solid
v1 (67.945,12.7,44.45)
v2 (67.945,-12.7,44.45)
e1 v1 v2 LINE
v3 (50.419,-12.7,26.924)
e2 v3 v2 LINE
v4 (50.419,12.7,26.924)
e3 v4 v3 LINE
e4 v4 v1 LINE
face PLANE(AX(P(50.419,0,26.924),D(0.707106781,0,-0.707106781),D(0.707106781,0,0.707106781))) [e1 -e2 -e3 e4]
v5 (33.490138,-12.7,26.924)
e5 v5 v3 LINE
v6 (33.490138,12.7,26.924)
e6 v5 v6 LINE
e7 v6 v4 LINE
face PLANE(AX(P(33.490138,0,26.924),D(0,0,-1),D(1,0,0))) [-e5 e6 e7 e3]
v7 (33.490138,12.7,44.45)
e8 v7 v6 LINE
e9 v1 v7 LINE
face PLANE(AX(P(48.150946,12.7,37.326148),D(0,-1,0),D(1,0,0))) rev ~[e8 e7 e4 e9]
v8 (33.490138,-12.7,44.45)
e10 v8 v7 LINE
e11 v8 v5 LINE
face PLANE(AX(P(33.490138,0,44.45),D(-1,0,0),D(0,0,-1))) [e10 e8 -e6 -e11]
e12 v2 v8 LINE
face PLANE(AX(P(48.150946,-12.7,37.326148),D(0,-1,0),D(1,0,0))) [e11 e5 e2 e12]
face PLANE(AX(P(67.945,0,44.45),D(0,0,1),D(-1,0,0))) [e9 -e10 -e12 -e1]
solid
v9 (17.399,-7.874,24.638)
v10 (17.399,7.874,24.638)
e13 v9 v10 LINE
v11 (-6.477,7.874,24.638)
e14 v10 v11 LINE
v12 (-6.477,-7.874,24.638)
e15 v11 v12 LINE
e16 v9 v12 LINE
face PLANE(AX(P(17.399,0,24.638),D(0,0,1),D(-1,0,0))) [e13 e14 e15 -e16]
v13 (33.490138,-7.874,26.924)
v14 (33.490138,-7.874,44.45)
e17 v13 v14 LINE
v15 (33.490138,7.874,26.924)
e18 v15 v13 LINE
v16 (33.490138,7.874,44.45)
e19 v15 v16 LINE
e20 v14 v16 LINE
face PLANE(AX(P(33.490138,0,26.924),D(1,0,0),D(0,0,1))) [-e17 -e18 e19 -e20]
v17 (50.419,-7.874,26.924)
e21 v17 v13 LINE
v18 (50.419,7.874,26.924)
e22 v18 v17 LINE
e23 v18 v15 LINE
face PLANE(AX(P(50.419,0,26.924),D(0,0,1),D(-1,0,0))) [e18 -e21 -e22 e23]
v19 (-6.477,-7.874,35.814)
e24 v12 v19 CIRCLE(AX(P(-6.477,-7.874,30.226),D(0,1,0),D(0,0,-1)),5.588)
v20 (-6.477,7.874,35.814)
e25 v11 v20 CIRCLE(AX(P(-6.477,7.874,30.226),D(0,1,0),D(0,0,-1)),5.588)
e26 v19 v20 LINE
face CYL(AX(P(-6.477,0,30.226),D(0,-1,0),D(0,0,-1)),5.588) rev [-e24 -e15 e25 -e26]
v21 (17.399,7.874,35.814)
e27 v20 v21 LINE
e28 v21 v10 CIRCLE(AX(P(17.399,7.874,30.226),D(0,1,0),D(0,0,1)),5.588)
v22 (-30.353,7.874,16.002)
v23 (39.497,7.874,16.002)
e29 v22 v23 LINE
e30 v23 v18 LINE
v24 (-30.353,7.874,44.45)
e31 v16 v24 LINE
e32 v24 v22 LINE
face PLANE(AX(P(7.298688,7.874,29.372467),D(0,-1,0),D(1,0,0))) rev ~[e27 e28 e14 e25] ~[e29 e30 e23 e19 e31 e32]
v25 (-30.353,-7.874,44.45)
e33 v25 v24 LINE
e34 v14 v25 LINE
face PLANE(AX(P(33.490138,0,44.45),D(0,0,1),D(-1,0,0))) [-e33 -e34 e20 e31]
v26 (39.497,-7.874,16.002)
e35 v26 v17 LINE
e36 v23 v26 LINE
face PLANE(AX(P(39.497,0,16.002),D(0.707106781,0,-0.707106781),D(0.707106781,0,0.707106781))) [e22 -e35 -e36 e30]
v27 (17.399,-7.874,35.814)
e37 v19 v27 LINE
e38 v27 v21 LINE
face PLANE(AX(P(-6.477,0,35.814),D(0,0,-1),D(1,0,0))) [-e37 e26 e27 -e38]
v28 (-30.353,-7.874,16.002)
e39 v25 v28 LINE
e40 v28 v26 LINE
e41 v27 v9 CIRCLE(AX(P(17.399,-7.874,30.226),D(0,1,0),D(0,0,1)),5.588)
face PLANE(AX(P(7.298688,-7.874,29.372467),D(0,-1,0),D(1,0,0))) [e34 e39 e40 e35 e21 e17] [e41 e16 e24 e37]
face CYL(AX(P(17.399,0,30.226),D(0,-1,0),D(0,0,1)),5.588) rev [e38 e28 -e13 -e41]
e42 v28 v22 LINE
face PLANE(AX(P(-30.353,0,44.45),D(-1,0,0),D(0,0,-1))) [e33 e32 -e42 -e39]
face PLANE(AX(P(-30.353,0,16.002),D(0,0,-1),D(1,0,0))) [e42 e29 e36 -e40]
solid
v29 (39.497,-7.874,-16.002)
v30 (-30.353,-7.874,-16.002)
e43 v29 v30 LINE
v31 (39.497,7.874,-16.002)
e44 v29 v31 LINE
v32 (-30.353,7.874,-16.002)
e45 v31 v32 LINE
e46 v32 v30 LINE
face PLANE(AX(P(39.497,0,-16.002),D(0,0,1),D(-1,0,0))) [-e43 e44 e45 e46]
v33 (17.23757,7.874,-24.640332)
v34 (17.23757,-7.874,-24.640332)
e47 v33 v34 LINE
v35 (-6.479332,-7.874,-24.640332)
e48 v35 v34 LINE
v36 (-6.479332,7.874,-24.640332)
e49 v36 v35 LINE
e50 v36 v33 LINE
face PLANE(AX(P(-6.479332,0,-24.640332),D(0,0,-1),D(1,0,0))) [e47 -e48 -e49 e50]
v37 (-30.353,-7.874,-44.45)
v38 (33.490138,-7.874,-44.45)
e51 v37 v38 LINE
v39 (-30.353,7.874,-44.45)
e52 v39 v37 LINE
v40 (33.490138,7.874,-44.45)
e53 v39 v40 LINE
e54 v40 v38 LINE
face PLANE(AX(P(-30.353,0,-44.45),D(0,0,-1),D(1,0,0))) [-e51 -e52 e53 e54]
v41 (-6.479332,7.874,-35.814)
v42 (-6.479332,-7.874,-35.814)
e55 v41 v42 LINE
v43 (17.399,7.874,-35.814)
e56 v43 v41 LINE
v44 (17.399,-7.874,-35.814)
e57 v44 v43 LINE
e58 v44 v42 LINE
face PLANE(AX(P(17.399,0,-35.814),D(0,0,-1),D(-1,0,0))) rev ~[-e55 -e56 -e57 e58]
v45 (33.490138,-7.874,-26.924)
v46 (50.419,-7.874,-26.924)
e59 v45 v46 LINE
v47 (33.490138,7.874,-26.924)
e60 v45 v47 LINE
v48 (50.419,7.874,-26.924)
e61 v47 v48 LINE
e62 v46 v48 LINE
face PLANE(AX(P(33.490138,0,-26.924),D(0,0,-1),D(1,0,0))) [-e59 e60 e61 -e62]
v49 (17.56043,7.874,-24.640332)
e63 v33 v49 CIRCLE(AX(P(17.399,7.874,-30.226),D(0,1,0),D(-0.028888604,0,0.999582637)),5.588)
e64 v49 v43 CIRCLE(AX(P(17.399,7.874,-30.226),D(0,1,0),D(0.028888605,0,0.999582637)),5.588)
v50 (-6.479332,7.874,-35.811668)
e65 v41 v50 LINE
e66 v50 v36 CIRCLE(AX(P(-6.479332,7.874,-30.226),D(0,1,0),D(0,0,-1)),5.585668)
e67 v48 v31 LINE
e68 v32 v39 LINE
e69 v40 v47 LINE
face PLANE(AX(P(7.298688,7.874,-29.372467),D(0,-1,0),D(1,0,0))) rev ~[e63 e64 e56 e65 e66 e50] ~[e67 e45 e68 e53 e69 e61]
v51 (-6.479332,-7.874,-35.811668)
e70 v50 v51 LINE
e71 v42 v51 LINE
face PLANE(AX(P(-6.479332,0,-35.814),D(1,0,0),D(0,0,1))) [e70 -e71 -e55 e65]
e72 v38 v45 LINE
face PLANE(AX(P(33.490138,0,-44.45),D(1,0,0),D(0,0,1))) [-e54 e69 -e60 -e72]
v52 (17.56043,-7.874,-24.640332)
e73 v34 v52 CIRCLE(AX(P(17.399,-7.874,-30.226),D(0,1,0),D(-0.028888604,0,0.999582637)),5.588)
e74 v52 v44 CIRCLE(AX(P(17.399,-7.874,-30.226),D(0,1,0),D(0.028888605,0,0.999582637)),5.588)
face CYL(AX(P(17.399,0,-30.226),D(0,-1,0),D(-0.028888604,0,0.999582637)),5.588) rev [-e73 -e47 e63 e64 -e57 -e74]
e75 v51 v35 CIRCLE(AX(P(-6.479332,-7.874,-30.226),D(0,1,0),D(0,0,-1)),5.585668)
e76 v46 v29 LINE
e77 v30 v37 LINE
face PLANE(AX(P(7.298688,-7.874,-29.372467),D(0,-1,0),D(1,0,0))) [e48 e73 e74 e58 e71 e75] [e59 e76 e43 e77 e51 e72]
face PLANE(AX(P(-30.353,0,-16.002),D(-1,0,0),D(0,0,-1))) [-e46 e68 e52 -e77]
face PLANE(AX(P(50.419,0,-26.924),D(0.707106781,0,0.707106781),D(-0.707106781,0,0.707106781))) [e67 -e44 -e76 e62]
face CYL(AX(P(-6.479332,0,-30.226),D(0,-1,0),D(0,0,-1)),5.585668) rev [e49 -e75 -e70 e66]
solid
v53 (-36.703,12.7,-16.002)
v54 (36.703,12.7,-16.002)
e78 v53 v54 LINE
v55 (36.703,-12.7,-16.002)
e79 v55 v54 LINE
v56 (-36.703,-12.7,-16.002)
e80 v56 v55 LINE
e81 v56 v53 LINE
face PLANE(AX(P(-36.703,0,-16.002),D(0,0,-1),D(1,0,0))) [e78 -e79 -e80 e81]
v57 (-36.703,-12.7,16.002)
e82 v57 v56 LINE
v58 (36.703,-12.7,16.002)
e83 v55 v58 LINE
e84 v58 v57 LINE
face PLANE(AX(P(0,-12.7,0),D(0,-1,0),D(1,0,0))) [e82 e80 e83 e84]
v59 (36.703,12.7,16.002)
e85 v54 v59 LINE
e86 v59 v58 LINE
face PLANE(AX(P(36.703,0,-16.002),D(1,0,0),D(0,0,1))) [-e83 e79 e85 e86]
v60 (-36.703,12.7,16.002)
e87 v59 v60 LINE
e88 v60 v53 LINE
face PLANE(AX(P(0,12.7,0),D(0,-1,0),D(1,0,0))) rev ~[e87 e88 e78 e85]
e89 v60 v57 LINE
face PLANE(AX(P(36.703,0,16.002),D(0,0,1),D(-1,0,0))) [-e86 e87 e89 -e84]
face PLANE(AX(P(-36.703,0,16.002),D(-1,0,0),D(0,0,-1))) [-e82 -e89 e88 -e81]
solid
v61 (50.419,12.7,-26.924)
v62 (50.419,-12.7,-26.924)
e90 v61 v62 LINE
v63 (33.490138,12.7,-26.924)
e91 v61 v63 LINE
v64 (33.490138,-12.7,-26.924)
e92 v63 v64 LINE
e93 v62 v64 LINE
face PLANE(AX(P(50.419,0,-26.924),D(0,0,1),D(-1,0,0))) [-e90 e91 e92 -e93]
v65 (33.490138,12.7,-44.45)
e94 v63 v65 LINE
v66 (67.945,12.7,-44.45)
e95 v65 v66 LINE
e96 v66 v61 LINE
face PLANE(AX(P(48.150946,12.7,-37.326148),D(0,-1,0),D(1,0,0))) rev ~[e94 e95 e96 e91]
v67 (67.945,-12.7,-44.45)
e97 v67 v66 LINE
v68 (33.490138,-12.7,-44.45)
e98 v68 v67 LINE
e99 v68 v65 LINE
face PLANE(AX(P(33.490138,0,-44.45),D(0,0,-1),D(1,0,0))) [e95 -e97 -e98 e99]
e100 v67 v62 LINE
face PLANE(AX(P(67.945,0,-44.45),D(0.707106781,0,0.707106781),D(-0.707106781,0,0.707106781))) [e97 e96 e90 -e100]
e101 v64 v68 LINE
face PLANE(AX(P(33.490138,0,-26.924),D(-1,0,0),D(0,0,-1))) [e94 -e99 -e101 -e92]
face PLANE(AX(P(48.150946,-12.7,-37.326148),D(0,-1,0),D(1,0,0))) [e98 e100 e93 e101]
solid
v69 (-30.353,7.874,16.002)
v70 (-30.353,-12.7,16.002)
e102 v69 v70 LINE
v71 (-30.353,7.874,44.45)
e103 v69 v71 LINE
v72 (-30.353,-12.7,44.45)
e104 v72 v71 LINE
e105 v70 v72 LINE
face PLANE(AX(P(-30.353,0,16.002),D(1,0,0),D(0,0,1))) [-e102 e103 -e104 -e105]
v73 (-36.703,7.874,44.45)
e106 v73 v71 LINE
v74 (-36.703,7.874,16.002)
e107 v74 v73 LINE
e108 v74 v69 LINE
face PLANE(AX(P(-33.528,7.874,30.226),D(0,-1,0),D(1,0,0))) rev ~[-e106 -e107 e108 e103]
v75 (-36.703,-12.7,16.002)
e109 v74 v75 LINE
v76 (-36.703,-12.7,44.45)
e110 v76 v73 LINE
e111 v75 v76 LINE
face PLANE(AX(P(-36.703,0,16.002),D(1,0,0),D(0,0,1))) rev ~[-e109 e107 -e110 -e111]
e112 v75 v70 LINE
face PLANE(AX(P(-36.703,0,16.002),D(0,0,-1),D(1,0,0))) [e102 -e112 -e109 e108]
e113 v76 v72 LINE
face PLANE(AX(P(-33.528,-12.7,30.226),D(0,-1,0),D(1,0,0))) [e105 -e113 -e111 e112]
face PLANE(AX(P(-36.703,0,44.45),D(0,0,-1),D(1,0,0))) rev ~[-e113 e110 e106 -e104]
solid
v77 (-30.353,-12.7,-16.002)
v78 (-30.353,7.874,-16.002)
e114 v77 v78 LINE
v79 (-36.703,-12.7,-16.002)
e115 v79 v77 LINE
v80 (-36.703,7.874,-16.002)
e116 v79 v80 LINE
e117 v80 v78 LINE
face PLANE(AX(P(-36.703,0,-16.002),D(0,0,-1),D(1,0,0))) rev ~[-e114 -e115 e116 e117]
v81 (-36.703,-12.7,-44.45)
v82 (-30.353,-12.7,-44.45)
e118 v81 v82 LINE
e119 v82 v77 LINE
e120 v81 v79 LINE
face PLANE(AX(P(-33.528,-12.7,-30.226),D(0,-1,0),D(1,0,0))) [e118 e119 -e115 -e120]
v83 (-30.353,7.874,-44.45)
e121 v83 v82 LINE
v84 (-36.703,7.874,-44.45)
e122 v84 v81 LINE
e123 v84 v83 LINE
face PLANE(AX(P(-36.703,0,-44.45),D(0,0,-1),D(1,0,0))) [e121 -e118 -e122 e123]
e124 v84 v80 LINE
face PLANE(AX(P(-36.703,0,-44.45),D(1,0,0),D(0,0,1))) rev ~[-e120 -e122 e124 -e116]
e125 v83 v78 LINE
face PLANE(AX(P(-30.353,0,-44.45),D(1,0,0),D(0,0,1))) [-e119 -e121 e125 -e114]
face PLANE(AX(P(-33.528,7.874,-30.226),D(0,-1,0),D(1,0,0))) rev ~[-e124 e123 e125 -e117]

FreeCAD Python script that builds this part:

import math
import FreeCAD as App
import Part
import Sketcher

V = App.Vector
Q = App.Units.Quantity


def add_polygon(sketch, points):
    """Adds a closed chain of lines whose ends are joined by coincident constraints."""
    first, n = sketch.GeometryCount, len(points)
    for a, b in zip(points, points[1:] + points[:1]):
        sketch.addGeometry(Part.LineSegment(App.Vector(*a, 0), App.Vector(*b, 0)), False)
    for i in range(n):
        sketch.addConstraint(Sketcher.Constraint("Coincident", first + i, 2, first + (i + 1) % n, 1))

doc = App.newDocument("Part")
body = doc.addObject("PartDesign::Body", "Body")

sketch1 = doc.addObject("Sketcher::SketchObject", "Sketch")
body.addObject(sketch1)
sketch1.AttachmentSupport = (doc.XZ_Plane, [""])
sketch1.MapMode = "FlatFace"
add_polygon(sketch1, [(33, 27), (50, 27), (68, 44), (33, 44)])
sketch1.addConstraint(Sketcher.Constraint("Horizontal", 0))
sketch1.addConstraint(Sketcher.Constraint("Horizontal", 2))
sketch1.addConstraint(Sketcher.Constraint("Vertical", 3))
sketch1.addConstraint(Sketcher.Constraint("Angle", 1, Q("45 deg")))
sketch1.addConstraint(Sketcher.Constraint("DistanceY", 3, 2, 3, 1, Q("0.69 in")))
sketch1.addConstraint(Sketcher.Constraint("DistanceY", -1, 1, 0, 2, Q("1.06 in")))
sketch1.addConstraint(Sketcher.Constraint("DistanceX", -1, 1, 0, 2, Q("1.985 in")))
sketch1.addConstraint(Sketcher.Constraint("DistanceX", 0, 1, 0, 2, Q("16.928862 mm")))
pad1 = doc.addObject("PartDesign::Pad", "Pad")
body.addObject(pad1)
pad1.Profile = sketch1
pad1.Length = Q("1 in")
pad1.Midplane = True
body2 = doc.addObject("PartDesign::Body", "Body001")

sketch2 = doc.addObject("Sketcher::SketchObject", "Sketch001")
body2.addObject(sketch2)
sketch2.AttachmentSupport = (doc.getObject("XZ_Plane001"), [""])
sketch2.MapMode = "FlatFace"
add_polygon(sketch2, [(37, -16), (37, 16), (-37, 16), (-37, -16)])
sketch2.addConstraint(Sketcher.Constraint("Vertical", 0))
sketch2.addConstraint(Sketcher.Constraint("Horizontal", 1))
sketch2.addConstraint(Sketcher.Constraint("Vertical", 2))
sketch2.addConstraint(Sketcher.Constraint("Horizontal", 3))
sketch2.addConstraint(Sketcher.Constraint("Symmetric", 0, 2, 2, 2, -1, 1))
sketch2.addConstraint(Sketcher.Constraint("DistanceX", 1, 2, 1, 1, Q("2.89 in")))
sketch2.addConstraint(Sketcher.Constraint("DistanceY", 0, 1, 0, 2, Q("1.26 in")))
pad2 = doc.addObject("PartDesign::Pad", "Pad001")
body2.addObject(pad2)
pad2.Profile = sketch2
pad2.Length = Q("1 in")
pad2.Midplane = True
body3 = doc.addObject("PartDesign::Body", "Body002")

sketch3 = doc.addObject("Sketcher::SketchObject", "Sketch002")
body3.addObject(sketch3)
sketch3.AttachmentSupport = (doc.getObject("XZ_Plane002"), [""])
sketch3.MapMode = "FlatFace"
add_polygon(sketch3, [(68, -44), (50, -27), (33, -27), (33, -44)])
sketch3.addConstraint(Sketcher.Constraint("Horizontal", 1))
sketch3.addConstraint(Sketcher.Constraint("Vertical", 2))
sketch3.addConstraint(Sketcher.Constraint("Horizontal", 3))
sketch3.addConstraint(Sketcher.Constraint("Angle", 0, Q("135 deg")))
sketch3.addConstraint(Sketcher.Constraint("DistanceY", 2, 2, 2, 1, Q("0.69 in")))
sketch3.addConstraint(Sketcher.Constraint("DistanceY", 0, 2, -1, 1, Q("1.06 in")))
sketch3.addConstraint(Sketcher.Constraint("DistanceX", -1, 1, 0, 2, Q("1.985 in")))
sketch3.addConstraint(Sketcher.Constraint("DistanceX", 1, 2, 1, 1, Q("16.928862 mm")))
pad3 = doc.addObject("PartDesign::Pad", "Pad002")
body3.addObject(pad3)
pad3.Profile = sketch3
pad3.Length = Q("1 in")
pad3.Midplane = True
body4 = doc.addObject("PartDesign::Body", "Body003")

sketch4 = doc.addObject("Sketcher::SketchObject", "Sketch003")
body4.addObject(sketch4)
sketch4.AttachmentSupport = (doc.getObject("XZ_Plane003"), [""])
sketch4.MapMode = "FlatFace"
add_polygon(sketch4, [(-30, 16), (39, 16), (50, 27), (33, 27), (33, 44), (-30, 44)])
sketch4.addGeometry(Part.LineSegment(V(17, 25, 0), V(-6, 25, 0)), False)
sketch4.addGeometry(Part.ArcOfCircle(Part.Circle(V(-6, 30, 0), V(0, 0, 1), 6), math.radians(90), math.radians(270)), False)
sketch4.addGeometry(Part.LineSegment(V(-6, 36, 0), V(17, 36, 0)), False)
sketch4.addGeometry(Part.ArcOfCircle(Part.Circle(V(17, 30, 0), V(0, 0, 1), 6), math.radians(-90), math.radians(90)), False)
sketch4.addConstraint(Sketcher.Constraint("Tangent", 6, 2, 7, 2))
sketch4.addConstraint(Sketcher.Constraint("Tangent", 7, 1, 8, 1))
sketch4.addConstraint(Sketcher.Constraint("Tangent", 8, 2, 9, 2))
sketch4.addConstraint(Sketcher.Constraint("Tangent", 9, 1, 6, 1))
sketch4.addConstraint(Sketcher.Constraint("Horizontal", 0))
sketch4.addConstraint(Sketcher.Constraint("Horizontal", 2))
sketch4.addConstraint(Sketcher.Constraint("Vertical", 3))
sketch4.addConstraint(Sketcher.Constraint("Horizontal", 4))
sketch4.addConstraint(Sketcher.Constraint("Vertical", 5))
sketch4.addConstraint(Sketcher.Constraint("Horizontal", 6))
sketch4.addConstraint(Sketcher.Constraint("Horizontal", 8))
sketch4.addConstraint(Sketcher.Constraint("Radius", 7, Q("0.22 in")))
sketch4.addConstraint(Sketcher.Constraint("Angle", 1, Q("45 deg")))
sketch4.addConstraint(Sketcher.Constraint("DistanceX", 0, 1, 0, 2, Q("2.75 in")))
sketch4.addConstraint(Sketcher.Constraint("DistanceX", 6, 2, 6, 1, Q("0.94 in")))
sketch4.addConstraint(Sketcher.Constraint("DistanceY", 3, 1, 3, 2, Q("0.69 in")))
sketch4.addConstraint(Sketcher.Constraint("DistanceY", 5, 2, 5, 1, Q("1.12 in")))
sketch4.addConstraint(Sketcher.Constraint("DistanceX", 9, 3, 1, 2, Q("1.3 in")))
sketch4.addConstraint(Sketcher.Constraint("DistanceY", -1, 1, 7, 3, Q("1.19 in")))
sketch4.addConstraint(Sketcher.Constraint("DistanceY", -1, 1, 0, 2, Q("0.63 in")))
sketch4.addConstraint(Sketcher.Constraint("DistanceX", 7, 3, -1, 1, Q("0.255 in")))
sketch4.addConstraint(Sketcher.Constraint("DistanceX", 2, 2, 2, 1, Q("16.928862 mm")))
pad4 = doc.addObject("PartDesign::Pad", "Pad003")
body4.addObject(pad4)
pad4.Profile = sketch4
pad4.Length = Q("0.62 in")
pad4.Midplane = True
body5 = doc.addObject("PartDesign::Body", "Body004")

sketch5 = doc.addObject("Sketcher::SketchObject", "Sketch004")
body5.addObject(sketch5)
sketch5.AttachmentSupport = (doc.getObject("XZ_Plane004"), [""])
sketch5.MapMode = "FlatFace"
add_polygon(sketch5, [(39.497, -16.002), (-30.353, -16.002), (-30.353, -44.45), (33.4901, -44.45), (33.4901, -26.924), (50.419, -26.924)])
sketch5.addGeometry(Part.ArcOfCircle(Part.Circle(V(17.399, -30.226, 0), V(0, 0, 1), 5.588), math.radians(-90), math.radians(88)), False)
sketch5.addGeometry(Part.LineSegment(V(17.399, -35.814, 0), V(-6.4793, -35.814, 0)), False)
sketch5.addGeometry(Part.LineSegment(V(-6.4793, -35.814, 0), V(-6.4793, -35.8117, 0)), False)
sketch5.addGeometry(Part.ArcOfCircle(Part.Circle(V(-6.4793, -30.226, 0), V(0, 0, 1), 5.5857), math.radians(90), math.radians(270)), False)
sketch5.addGeometry(Part.LineSegment(V(-6.4793, -24.6403, 0), V(17.2376, -24.6403, 0)), False)
sketch5.addGeometry(Part.ArcOfCircle(Part.Circle(V(17.399, -30.226, 0), V(0, 0, 1), 5.588), math.radians(88.34), math.radians(91.66)), False)
sketch5.addConstraint(Sketcher.Constraint("Tangent", 6, 1, 7, 1))
sketch5.addConstraint(Sketcher.Constraint("Coincident", 7, 2, 8, 1))
sketch5.addConstraint(Sketcher.Constraint("Coincident", 8, 2, 9, 2))
sketch5.addConstraint(Sketcher.Constraint("Tangent", 9, 1, 10, 1))
sketch5.addConstraint(Sketcher.Constraint("Coincident", 10, 2, 11, 2))
sketch5.addConstraint(Sketcher.Constraint("Tangent", 11, 1, 6, 2))
sketch5.addConstraint(Sketcher.Constraint("Horizontal", 0))
sketch5.addConstraint(Sketcher.Constraint("Vertical", 1))
sketch5.addConstraint(Sketcher.Constraint("Horizontal", 2))
sketch5.addConstraint(Sketcher.Constraint("Vertical", 3))
sketch5.addConstraint(Sketcher.Constraint("Horizontal", 4))
sketch5.addConstraint(Sketcher.Constraint("Horizontal", 7))
sketch5.addConstraint(Sketcher.Constraint("Vertical", 8))
sketch5.addConstraint(Sketcher.Constraint("Horizontal", 10))
sketch5.addConstraint(Sketcher.Constraint("Equal", 6, 11))
sketch5.addConstraint(Sketcher.Constraint("Horizontal", 6, 3, 9, 3))
sketch5.addConstraint(Sketcher.Constraint("Horizontal", 10, 2, 11, 1))
sketch5.addConstraint(Sketcher.Constraint("Vertical", 9, 3, 7, 2))
sketch5.addConstraint(Sketcher.Constraint("Radius", 6, Q("0.22 in")))
sketch5.addConstraint(Sketcher.Constraint("Angle", 5, Q("135 deg")))
sketch5.addConstraint(Sketcher.Constraint("DistanceX", 0, 2, 0, 1, Q("2.75 in")))
sketch5.addConstraint(Sketcher.Constraint("DistanceY", 1, 2, 1, 1, Q("1.12 in")))
sketch5.addConstraint(Sketcher.Constraint("DistanceY", 3, 1, 3, 2, Q("0.69 in")))
sketch5.addConstraint(Sketcher.Constraint("DistanceX", 6, 3, 4, 2, Q("1.3 in")))
sketch5.addConstraint(Sketcher.Constraint("DistanceY", 6, 3, -1, 1, Q("1.19 in")))
sketch5.addConstraint(Sketcher.Constraint("DistanceY", 0, 2, -1, 1, Q("0.63 in")))
sketch5.addConstraint(Sketcher.Constraint("DistanceX", -1, 1, 6, 3, Q("0.685 in")))
sketch5.addConstraint(Sketcher.Constraint("Radius", 9, Q("5.585668 mm")))
sketch5.addConstraint(Sketcher.Constraint("DistanceX", 2, 1, 2, 2, Q("63.843138 mm")))
sketch5.addConstraint(Sketcher.Constraint("DistanceX", 7, 2, 7, 1, Q("23.878332 mm")))
pad5 = doc.addObject("PartDesign::Pad", "Pad004")
body5.addObject(pad5)
pad5.Profile = sketch5
pad5.Length = Q("0.62 in")
pad5.Midplane = True
body6 = doc.addObject("PartDesign::Body", "Body005")

sketch6 = doc.addObject("Sketcher::SketchObject", "Sketch005")
body6.addObject(sketch6)
sketch6.AttachmentSupport = (doc.getObject("XZ_Plane005"), [""])
sketch6.MapMode = "FlatFace"
add_polygon(sketch6, [(-37, 44), (-37, 16), (-30, 16), (-30, 44)])
sketch6.addConstraint(Sketcher.Constraint("Vertical", 0))
sketch6.addConstraint(Sketcher.Constraint("Horizontal", 1))
sketch6.addConstraint(Sketcher.Constraint("Vertical", 2))
sketch6.addConstraint(Sketcher.Constraint("Horizontal", 3))
sketch6.addConstraint(Sketcher.Constraint("DistanceX", 1, 1, 1, 2, Q("0.25 in")))
sketch6.addConstraint(Sketcher.Constraint("DistanceY", 0, 2, 0, 1, Q("1.12 in")))
sketch6.addConstraint(Sketcher.Constraint("DistanceY", -1, 1, 0, 2, Q("0.63 in")))
sketch6.addConstraint(Sketcher.Constraint("DistanceX", 0, 2, -1, 1, Q("1.445 in")))
pad6 = doc.addObject("PartDesign::Pad", "Pad005")
body6.addObject(pad6)
pad6.Profile = sketch6
pad6.Type = "TwoLengths"
pad6.Length = Q("0.5 in")
pad6.Length2 = Q("0.31 in")
body7 = doc.addObject("PartDesign::Body", "Body006")

sketch7 = doc.addObject("Sketcher::SketchObject", "Sketch006")
body7.addObject(sketch7)
sketch7.AttachmentSupport = (doc.getObject("XZ_Plane006"), [""])
sketch7.MapMode = "FlatFace"
add_polygon(sketch7, [(-37, -16), (-37, -44), (-30, -44), (-30, -16)])
sketch7.addConstraint(Sketcher.Constraint("Vertical", 0))
sketch7.addConstraint(Sketcher.Constraint("Horizontal", 1))
sketch7.addConstraint(Sketcher.Constraint("Vertical", 2))
sketch7.addConstraint(Sketcher.Constraint("Horizontal", 3))
sketch7.addConstraint(Sketcher.Constraint("DistanceX", 1, 1, 1, 2, Q("0.25 in")))
sketch7.addConstraint(Sketcher.Constraint("DistanceY", 0, 2, 0, 1, Q("1.12 in")))
sketch7.addConstraint(Sketcher.Constraint("DistanceY", 0, 2, -1, 1, Q("1.75 in")))
sketch7.addConstraint(Sketcher.Constraint("DistanceX", 0, 2, -1, 1, Q("1.445 in")))
pad7 = doc.addObject("PartDesign::Pad", "Pad006")
body7.addObject(pad7)
pad7.Profile = sketch7
pad7.Type = "TwoLengths"
pad7.Length = Q("0.5 in")
pad7.Length2 = Q("0.31 in")

doc.recompute()
